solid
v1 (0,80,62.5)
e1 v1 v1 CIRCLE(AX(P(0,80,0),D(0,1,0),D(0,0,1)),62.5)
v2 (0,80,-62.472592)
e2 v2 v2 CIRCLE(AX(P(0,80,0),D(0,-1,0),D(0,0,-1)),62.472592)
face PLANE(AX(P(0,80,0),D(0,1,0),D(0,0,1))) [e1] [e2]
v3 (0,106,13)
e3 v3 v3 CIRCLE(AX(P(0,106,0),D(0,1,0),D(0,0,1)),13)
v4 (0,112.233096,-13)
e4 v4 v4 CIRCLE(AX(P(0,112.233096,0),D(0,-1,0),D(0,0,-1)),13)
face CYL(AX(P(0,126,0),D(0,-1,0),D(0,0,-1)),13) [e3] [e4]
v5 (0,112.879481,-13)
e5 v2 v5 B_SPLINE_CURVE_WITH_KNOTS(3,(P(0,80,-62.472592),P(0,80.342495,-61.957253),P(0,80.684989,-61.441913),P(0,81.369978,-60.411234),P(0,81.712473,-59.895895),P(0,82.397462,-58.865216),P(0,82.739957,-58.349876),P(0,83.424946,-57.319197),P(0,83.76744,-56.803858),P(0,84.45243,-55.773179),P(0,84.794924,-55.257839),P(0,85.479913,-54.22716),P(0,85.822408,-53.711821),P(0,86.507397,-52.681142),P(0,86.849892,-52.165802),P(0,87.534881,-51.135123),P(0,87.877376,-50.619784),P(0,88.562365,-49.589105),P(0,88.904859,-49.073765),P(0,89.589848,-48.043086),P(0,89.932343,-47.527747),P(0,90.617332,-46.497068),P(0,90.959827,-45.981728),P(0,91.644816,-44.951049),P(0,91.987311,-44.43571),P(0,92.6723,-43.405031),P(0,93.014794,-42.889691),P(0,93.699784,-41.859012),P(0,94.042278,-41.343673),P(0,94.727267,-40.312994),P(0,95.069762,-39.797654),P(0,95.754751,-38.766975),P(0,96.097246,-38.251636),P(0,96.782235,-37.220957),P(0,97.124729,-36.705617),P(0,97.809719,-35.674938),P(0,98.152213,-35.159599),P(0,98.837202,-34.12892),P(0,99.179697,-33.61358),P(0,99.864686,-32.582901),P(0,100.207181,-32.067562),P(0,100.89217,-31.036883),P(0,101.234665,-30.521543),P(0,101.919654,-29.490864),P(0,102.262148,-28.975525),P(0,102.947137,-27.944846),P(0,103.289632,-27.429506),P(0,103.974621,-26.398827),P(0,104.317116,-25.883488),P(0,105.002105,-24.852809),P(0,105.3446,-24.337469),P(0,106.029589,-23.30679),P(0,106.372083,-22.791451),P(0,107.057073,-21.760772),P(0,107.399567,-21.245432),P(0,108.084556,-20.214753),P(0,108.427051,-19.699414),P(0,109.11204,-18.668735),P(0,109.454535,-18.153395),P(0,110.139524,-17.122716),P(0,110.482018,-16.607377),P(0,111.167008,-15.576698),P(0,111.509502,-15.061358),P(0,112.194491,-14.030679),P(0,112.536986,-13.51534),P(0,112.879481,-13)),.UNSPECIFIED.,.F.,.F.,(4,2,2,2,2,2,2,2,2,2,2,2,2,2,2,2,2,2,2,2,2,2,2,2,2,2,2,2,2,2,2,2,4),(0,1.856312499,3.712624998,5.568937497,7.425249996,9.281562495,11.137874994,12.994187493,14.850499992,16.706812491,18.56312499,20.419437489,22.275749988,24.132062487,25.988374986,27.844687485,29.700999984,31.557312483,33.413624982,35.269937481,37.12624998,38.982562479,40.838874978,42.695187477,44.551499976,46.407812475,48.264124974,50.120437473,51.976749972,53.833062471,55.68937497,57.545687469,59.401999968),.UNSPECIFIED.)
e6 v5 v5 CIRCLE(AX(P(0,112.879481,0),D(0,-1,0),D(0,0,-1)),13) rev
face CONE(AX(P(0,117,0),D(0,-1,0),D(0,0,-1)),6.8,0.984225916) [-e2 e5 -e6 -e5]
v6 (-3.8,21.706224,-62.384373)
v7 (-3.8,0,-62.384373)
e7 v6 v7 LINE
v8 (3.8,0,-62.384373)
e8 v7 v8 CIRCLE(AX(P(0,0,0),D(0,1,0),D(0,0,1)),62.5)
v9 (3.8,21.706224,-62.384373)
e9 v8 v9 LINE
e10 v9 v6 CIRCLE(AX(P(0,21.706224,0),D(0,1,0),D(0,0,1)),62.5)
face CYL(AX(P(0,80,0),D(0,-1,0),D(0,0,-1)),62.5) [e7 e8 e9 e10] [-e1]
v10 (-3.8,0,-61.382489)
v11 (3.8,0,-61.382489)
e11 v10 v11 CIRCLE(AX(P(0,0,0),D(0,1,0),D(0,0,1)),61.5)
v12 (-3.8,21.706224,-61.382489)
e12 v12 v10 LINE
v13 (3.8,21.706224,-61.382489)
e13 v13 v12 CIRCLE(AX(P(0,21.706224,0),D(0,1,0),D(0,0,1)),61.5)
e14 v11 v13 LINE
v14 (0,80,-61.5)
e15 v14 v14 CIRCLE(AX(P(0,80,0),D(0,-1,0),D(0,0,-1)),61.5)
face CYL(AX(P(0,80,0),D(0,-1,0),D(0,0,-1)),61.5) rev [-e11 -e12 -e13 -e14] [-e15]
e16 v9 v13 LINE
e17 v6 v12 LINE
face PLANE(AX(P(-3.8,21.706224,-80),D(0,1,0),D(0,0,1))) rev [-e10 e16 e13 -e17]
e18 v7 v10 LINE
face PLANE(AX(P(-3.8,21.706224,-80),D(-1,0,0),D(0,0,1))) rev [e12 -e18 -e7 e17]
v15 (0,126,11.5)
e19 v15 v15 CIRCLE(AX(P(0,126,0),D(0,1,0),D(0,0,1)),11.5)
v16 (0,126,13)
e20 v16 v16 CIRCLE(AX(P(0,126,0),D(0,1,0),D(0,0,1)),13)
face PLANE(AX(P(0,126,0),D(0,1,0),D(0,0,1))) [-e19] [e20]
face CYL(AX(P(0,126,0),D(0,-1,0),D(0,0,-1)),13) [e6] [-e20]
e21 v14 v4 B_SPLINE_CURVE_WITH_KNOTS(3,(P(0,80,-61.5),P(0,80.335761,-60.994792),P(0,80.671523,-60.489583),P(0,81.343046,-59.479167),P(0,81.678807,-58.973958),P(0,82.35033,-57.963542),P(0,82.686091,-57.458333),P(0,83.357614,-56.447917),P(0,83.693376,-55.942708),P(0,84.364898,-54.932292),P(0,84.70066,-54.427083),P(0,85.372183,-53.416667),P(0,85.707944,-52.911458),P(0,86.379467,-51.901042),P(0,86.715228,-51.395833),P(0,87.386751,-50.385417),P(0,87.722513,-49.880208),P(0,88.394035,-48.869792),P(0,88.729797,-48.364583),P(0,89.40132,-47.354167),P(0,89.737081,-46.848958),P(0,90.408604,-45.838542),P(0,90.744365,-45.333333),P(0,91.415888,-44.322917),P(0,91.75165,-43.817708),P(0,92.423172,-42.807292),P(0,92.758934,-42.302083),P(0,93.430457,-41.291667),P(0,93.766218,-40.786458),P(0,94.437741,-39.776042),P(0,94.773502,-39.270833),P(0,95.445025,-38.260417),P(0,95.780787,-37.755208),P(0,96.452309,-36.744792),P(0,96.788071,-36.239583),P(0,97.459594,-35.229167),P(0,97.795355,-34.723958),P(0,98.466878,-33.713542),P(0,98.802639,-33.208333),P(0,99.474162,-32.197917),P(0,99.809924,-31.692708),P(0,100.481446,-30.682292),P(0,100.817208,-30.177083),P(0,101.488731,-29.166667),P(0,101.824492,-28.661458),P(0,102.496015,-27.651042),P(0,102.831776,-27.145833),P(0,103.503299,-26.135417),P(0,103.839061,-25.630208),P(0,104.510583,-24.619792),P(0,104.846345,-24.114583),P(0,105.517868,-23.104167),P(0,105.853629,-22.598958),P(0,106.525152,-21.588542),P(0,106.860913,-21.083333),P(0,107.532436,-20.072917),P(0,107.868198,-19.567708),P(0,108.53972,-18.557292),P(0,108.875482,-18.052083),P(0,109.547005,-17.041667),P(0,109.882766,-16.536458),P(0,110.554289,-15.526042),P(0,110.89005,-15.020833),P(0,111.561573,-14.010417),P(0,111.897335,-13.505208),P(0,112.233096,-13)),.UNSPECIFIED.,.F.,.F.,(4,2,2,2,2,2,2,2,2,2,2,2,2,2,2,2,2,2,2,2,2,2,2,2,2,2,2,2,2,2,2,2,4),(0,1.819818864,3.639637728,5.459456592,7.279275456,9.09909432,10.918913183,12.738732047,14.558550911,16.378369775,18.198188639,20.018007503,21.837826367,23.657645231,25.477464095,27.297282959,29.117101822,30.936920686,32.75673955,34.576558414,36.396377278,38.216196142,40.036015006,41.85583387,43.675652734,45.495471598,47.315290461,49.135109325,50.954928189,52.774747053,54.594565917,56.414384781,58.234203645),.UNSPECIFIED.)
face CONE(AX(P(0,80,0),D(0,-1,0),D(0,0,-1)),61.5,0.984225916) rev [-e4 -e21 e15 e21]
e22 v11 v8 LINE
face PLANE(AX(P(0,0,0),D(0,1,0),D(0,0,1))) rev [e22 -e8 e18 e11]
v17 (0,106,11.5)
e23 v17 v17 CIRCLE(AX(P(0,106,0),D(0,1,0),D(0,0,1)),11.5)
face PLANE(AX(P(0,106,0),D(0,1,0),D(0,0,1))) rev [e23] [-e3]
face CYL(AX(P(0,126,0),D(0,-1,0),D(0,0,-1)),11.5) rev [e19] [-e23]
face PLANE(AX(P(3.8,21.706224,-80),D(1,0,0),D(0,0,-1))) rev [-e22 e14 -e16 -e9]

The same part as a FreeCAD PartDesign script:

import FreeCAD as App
import Part
import Sketcher

V = App.Vector

doc = App.newDocument("Part")
body = doc.addObject("PartDesign::Body", "Body")

# Sketch on XZ plane
sketch1 = body.newObject("Sketcher::SketchObject", "Sketch")
sketch1.AttachmentSupport = (doc.getObject("XZ_Plane"), [""])
sketch1.MapMode = "FlatFace"
sketch1.addGeometry([
    Part.Circle(V(0, 0, 0), V(0, 0, 1), 62),
    Part.Circle(V(0, 0, 0), V(0, 0, 1), 62),
], False)
sketch1.addConstraint([
    Sketcher.Constraint("Coincident", 0, 3, -1, 1),
    Sketcher.Constraint("Coincident", 1, 3, -1, 1),
    Sketcher.Constraint("Diameter", 0, 125.0),
    Sketcher.Constraint("Diameter", 1, 123.0),
])
pad1 = body.newObject("PartDesign::Pad", "Pad")
pad1.Profile = sketch1
pad1.Length = 80
pad1.Reversed = True

# Sketch on XY plane
sketch2 = body.newObject("Sketcher::SketchObject", "Sketch001")
sketch2.AttachmentSupport = (doc.getObject("XY_Plane"), [""])
sketch2.MapMode = "FlatFace"
sketch2.addGeometry([
    Part.LineSegment(V(-62.5, 80, 0), V(-62.5, 79.3, 0)),  # 0
    Part.LineSegment(V(-62.5, 79.3, 0), V(-61.5, 79.3, 0)),  # 1
    Part.LineSegment(V(-61.5, 79.3, 0), V(-61.5, 80, 0)),  # 2
    Part.LineSegment(V(-61.5, 80, 0), V(-4.8, 117.7, 0)),  # 3
    Part.LineSegment(V(-4.8, 117.7, 0), V(-4.8, 130, 0)),  # 4
    Part.LineSegment(V(-4.8, 130, 0), V(-8, 130, 0)),  # 5
    Part.LineSegment(V(-8, 130, 0), V(-8, 127, 0)),  # 6
    Part.LineSegment(V(-8, 127, 0), V(-6.8, 127, 0)),  # 7
    Part.LineSegment(V(-6.8, 127, 0), V(-6.8, 117, 0)),  # 8
    Part.LineSegment(V(-6.8, 117, 0), V(-62.5, 80, 0)),  # 9
], False)
sketch2.addConstraint([
    Sketcher.Constraint("Coincident", 0, 2, 1, 1),
    Sketcher.Constraint("Coincident", 1, 2, 2, 1),
    Sketcher.Constraint("Coincident", 2, 2, 3, 1),
    Sketcher.Constraint("Coincident", 3, 2, 4, 1),
    Sketcher.Constraint("Coincident", 4, 2, 5, 1),
    Sketcher.Constraint("Coincident", 5, 2, 6, 1),
    Sketcher.Constraint("Coincident", 6, 2, 7, 1),
    Sketcher.Constraint("Coincident", 7, 2, 8, 1),
    Sketcher.Constraint("Coincident", 8, 2, 9, 1),
    Sketcher.Constraint("Coincident", 9, 2, 0, 1),
    Sketcher.Constraint("Vertical", 0),
    Sketcher.Constraint("Horizontal", 1),
    Sketcher.Constraint("Vertical", 2),
    Sketcher.Constraint("Vertical", 4),
    Sketcher.Constraint("Horizontal", 5),
    Sketcher.Constraint("Vertical", 6),
    Sketcher.Constraint("Horizontal", 7),
    Sketcher.Constraint("Vertical", 8),
    Sketcher.Constraint("Parallel", 3, 9),
    Sketcher.Constraint("Horizontal", 2, 2, 9, 2),
    Sketcher.Constraint("DistanceY", 8, 2, 8, 1, 10.0),
    Sketcher.Constraint("DistanceX", 5, 2, 5, 1, 3.2),
    Sketcher.Constraint("DistanceX", 7, 1, 7, 2, 1.2),
    Sketcher.Constraint("DistanceY", -1, 1, 2, 2, 80.0),
    Sketcher.Constraint("DistanceX", 5, 2, -1, 1, 8.0),
    Sketcher.Constraint("DistanceY", -1, 1, 6, 2, 127.0),
    Sketcher.Constraint("DistanceX", 1, 2, -1, 1, 61.5),
    Sketcher.Constraint("DistanceX", 1, 1, 1, 2, 0.972592),
    Sketcher.Constraint("DistanceY", 0, 2, 0, 1, 0.723116),
    Sketcher.Constraint("DistanceY", 4, 1, 4, 2, 12.312697),
])
revolution = body.newObject("PartDesign::Revolution", "Revolution")
revolution.Profile = sketch2
revolution.ReferenceAxis = (sketch2, ["V_Axis"])
revolution.Angle = 360

# Sketch on XY plane
sketch3 = body.newObject("Sketcher::SketchObject", "Sketch002")
sketch3.AttachmentSupport = (doc.getObject("XY_Plane"), [""])
sketch3.MapMode = "FlatFace"
sketch3.addGeometry([
    Part.LineSegment(V(-4, 22, 0), V(-4, -2, 0)),
    Part.LineSegment(V(-4, -2, 0), V(4, -2, 0)),
    Part.LineSegment(V(4, -2, 0), V(4, 22, 0)),
    Part.LineSegment(V(4, 22, 0), V(-4, 22, 0)),
], False)
sketch3.addConstraint([
    Sketcher.Constraint("Coincident", 0, 2, 1, 1),
    Sketcher.Constraint("Coincident", 1, 2, 2, 1),
    Sketcher.Constraint("Coincident", 2, 2, 3, 1),
    Sketcher.Constraint("Coincident", 3, 2, 0, 1),
    Sketcher.Constraint("Vertical", 0),
    Sketcher.Constraint("Horizontal", 1),
    Sketcher.Constraint("Vertical", 2),
    Sketcher.Constraint("Horizontal", 3),
    Sketcher.Constraint("DistanceX", 1, 1, 1, 2, 7.6),
    Sketcher.Constraint("DistanceX", 0, 2, -1, 1, 3.8),
    Sketcher.Constraint("DistanceY", 0, 2, 0, 1, 23.660429),
    Sketcher.Constraint("DistanceY", 0, 2, -1, 1, 1.954206),
])
pocket1 = body.newObject("PartDesign::Pocket", "Pocket")
pocket1.Profile = sketch3
pocket1.Length = 80

# Sketch on XZ plane
sketch4 = body.newObject("Sketcher::SketchObject", "Sketch003")
sketch4.AttachmentSupport = (doc.getObject("XZ_Plane"), [""])
sketch4.MapMode = "FlatFace"
sketch4.addGeometry(Part.Circle(V(0, 0, 0), V(0, 0, 1), 12), False)
sketch4.addConstraint([
    Sketcher.Constraint("Coincident", 0, 3, -1, 1),
    Sketcher.Constraint("Diameter", 0, 24.6),
])
pocket2 = body.newObject("PartDesign::Pocket", "Pocket001")
pocket2.Profile = sketch4
pocket2.Length = 229

# Sketch on XZ plane
sketch5 = body.newObject("Sketcher::SketchObject", "Sketch004")
sketch5.AttachmentSupport = (doc.getObject("XZ_Plane"), [""])
sketch5.MapMode = "FlatFace"
sketch5.AttachmentOffset = App.Placement(V(0, 0, -106), App.Rotation())
sketch5.addGeometry([
    Part.Circle(V(0, 0, 0), V(0, 0, 1), 13),
    Part.Circle(V(0, 0, 0), V(0, 0, 1), 12),
], False)
sketch5.addConstraint([
    Sketcher.Constraint("Coincident", 0, 3, -1, 1),
    Sketcher.Constraint("Coincident", 1, 3, -1, 1),
    Sketcher.Constraint("Diameter", 0, 26.0),
    Sketcher.Constraint("Diameter", 1, 23.0),
])
pad2 = body.newObject("PartDesign::Pad", "Pad001")
pad2.Profile = sketch5
pad2.Length = 20
pad2.Reversed = True

doc.recompute()
